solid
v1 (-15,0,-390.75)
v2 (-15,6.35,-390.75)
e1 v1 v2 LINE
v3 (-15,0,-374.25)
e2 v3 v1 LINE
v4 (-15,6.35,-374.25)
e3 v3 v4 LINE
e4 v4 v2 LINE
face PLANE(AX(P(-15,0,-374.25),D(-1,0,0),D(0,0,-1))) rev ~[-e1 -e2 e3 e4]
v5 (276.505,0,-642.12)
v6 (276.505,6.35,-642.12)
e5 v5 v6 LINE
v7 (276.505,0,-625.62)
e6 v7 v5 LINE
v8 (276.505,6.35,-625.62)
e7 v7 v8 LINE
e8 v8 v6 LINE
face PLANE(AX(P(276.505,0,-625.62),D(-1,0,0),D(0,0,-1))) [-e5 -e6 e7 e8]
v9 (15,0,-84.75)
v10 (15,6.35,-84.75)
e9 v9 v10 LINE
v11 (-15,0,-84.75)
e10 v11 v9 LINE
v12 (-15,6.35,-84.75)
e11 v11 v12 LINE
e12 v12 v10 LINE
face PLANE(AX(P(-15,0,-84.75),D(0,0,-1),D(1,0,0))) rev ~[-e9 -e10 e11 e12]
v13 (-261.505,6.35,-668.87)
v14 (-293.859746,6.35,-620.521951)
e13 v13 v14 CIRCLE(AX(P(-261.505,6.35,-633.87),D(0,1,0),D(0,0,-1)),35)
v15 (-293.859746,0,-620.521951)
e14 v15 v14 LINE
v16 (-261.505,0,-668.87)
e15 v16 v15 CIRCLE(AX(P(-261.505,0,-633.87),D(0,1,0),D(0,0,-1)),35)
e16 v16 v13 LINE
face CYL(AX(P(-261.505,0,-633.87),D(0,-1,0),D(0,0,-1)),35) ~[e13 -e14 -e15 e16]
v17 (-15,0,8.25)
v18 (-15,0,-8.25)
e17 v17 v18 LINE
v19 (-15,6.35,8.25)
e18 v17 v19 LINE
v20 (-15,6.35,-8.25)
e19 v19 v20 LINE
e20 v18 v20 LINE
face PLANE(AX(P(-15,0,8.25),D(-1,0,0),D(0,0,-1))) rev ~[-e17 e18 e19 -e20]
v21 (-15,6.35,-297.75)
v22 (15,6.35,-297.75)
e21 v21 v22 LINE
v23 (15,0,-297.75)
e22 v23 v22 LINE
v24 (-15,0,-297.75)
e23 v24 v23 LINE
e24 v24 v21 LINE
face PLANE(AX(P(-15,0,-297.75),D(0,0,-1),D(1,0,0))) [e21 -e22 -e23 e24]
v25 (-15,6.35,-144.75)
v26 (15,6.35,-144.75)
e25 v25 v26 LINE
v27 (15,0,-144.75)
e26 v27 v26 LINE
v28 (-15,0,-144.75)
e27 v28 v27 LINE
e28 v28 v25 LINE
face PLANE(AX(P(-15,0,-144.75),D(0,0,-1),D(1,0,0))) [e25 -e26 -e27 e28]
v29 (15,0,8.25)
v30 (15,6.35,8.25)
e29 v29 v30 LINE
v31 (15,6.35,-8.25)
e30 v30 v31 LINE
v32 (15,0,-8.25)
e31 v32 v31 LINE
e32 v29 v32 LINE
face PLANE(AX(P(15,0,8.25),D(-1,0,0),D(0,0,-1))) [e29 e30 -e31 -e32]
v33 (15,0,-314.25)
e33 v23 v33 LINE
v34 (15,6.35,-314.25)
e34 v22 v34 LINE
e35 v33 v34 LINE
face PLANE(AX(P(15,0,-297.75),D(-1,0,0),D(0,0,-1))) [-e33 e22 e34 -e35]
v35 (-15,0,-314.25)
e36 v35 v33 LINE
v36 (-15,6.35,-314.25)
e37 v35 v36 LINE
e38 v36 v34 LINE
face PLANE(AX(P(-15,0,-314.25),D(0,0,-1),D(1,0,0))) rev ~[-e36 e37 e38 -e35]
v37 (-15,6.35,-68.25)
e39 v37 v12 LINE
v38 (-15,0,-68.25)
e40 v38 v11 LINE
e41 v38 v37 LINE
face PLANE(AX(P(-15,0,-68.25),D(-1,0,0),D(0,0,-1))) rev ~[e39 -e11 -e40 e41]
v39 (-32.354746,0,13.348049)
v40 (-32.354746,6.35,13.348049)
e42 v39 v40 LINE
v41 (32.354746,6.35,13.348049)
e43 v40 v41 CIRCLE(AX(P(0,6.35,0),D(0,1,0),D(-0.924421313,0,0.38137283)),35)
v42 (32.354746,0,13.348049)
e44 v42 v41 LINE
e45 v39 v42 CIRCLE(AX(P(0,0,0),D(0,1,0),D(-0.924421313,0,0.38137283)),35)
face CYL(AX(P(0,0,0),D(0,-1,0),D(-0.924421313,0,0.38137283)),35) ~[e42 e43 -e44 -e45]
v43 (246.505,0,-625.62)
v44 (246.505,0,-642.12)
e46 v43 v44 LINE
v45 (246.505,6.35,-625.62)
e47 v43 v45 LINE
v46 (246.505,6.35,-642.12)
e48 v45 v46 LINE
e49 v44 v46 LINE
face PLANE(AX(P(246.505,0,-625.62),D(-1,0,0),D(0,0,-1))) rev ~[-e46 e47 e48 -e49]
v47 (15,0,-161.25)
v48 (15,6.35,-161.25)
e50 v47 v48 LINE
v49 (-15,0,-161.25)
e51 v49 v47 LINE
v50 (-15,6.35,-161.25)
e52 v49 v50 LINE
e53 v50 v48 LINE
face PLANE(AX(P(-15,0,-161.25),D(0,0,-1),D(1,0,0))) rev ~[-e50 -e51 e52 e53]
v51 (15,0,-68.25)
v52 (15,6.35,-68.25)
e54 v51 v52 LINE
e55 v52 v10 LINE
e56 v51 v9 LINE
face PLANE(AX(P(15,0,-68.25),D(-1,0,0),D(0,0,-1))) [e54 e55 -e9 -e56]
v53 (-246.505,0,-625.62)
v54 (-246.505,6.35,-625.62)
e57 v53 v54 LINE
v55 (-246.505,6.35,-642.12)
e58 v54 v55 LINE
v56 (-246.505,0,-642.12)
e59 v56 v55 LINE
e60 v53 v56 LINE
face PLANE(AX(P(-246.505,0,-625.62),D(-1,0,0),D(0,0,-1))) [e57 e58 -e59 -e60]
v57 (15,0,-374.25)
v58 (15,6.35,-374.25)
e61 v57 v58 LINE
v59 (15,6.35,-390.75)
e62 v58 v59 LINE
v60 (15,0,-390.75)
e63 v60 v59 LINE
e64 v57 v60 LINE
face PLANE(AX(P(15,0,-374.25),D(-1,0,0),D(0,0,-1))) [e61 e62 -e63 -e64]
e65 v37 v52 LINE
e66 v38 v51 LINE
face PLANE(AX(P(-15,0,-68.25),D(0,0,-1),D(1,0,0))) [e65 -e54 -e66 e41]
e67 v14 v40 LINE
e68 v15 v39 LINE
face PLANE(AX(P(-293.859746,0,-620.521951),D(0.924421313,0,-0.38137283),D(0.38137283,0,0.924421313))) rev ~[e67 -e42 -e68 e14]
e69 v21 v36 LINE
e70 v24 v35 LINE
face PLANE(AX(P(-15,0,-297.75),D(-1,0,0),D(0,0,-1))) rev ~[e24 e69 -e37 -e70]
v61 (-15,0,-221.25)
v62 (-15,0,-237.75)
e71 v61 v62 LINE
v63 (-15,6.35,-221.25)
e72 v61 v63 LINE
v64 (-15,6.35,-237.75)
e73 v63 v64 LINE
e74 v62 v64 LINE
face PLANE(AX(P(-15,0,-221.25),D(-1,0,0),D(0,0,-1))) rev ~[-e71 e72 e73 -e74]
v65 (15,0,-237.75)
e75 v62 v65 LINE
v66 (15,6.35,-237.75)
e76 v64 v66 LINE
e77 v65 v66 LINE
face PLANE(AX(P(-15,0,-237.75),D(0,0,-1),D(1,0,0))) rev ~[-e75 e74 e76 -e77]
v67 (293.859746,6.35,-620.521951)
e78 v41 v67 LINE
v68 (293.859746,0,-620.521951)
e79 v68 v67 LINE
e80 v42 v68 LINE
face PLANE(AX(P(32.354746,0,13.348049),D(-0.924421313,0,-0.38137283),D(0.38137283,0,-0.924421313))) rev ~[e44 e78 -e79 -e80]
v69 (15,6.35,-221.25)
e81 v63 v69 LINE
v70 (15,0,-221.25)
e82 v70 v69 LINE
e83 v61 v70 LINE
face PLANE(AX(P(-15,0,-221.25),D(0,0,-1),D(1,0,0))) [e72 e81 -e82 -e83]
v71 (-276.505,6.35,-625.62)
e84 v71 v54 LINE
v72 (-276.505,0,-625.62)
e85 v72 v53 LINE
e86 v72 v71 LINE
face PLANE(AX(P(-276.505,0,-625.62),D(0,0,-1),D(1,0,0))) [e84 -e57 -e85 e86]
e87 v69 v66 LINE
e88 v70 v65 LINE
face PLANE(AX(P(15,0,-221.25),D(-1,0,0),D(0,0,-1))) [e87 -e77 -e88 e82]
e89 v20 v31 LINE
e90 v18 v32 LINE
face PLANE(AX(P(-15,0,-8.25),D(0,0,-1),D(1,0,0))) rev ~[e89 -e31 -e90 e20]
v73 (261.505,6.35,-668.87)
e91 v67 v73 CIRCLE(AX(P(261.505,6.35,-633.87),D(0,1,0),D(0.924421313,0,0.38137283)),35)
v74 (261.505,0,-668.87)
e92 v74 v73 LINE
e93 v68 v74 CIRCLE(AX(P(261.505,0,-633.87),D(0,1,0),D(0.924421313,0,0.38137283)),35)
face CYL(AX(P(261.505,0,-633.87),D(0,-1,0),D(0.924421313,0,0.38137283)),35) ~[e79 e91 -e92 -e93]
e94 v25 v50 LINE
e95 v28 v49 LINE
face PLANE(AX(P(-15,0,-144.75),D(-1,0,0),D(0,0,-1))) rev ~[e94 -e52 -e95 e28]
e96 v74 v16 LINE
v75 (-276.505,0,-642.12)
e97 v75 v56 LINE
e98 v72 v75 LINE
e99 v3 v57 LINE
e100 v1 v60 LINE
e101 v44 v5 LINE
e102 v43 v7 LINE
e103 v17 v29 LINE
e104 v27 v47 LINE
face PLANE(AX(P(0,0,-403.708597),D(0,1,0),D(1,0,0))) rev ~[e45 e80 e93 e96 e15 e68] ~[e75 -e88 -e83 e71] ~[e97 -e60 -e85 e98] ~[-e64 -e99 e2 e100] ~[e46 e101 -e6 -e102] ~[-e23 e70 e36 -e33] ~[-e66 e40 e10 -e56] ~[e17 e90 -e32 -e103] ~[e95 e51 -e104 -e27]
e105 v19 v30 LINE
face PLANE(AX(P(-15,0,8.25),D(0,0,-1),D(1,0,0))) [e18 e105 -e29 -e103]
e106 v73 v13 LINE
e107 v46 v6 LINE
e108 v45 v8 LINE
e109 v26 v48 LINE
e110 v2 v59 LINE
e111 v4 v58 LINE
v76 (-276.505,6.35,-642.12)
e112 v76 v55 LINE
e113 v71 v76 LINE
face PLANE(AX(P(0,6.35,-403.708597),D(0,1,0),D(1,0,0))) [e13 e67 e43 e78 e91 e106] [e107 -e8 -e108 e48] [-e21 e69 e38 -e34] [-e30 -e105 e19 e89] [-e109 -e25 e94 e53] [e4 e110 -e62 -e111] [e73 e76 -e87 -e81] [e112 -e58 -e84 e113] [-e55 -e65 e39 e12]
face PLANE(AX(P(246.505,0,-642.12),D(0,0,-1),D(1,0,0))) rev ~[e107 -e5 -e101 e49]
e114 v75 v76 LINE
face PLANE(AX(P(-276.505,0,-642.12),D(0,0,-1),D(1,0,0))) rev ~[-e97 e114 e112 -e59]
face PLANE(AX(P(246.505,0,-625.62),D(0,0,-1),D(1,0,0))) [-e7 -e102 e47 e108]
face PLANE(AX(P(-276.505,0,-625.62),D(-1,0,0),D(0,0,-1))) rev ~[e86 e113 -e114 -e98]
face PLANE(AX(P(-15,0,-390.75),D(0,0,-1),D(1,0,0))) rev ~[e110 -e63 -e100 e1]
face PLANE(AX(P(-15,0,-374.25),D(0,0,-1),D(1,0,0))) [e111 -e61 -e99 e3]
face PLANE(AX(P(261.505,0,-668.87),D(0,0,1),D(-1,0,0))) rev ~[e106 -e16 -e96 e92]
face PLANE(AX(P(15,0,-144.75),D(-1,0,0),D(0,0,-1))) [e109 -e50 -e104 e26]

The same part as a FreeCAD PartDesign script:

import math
import FreeCAD as App
import Part
import Sketcher


def add_polygon(sketch, points):
    """Adds a closed chain of lines whose ends are joined by coincident constraints."""
    first, n = sketch.GeometryCount, len(points)
    for a, b in zip(points, points[1:] + points[:1]):
        sketch.addGeometry(Part.LineSegment(App.Vector(*a, 0), App.Vector(*b, 0)), False)
    for i in range(n):
        sketch.addConstraint(Sketcher.Constraint("Coincident", first + i, 2, first + (i + 1) % n, 1))

doc = App.newDocument("Part")
params = doc.addObject("Spreadsheet::Sheet", "Params")
for row, (alias, value) in enumerate([
    ("sketch1_radius", "35 mm"),
    ("sketch1_width", "30 mm"),
    ("sketch1_height", "16.5 mm"),
    ("sketch1_width2", "523.01 mm"),
    ("pad1_length", "6.35 mm"),
], start=1):
    params.set(f"A{row}", alias)
    params.set(f"B{row}", "=" + value)
    params.setAlias(f"B{row}", alias)

body = doc.addObject("PartDesign::Body", "Body")

# Sketch on XZ plane
sketch1 = body.newObject("Sketcher::SketchObject", "Sketch")
sketch1.AttachmentSupport = (doc.getObject("XZ_Plane"), [""])
sketch1.MapMode = "FlatFace"
sketch1.addGeometry(Part.LineSegment(App.Vector(32.354746, 13.348049, 0), App.Vector(293.859746, -620.521951, 0)), False)  # 0
sketch1.addGeometry(Part.ArcOfCircle(Part.Circle(App.Vector(261.505, -633.87, 0), App.Vector(0, 0, 1), 35), math.radians(-90), math.radians(22.418745)), False)  # 1
sketch1.addGeometry(Part.LineSegment(App.Vector(261.505, -668.87, 0), App.Vector(-261.505, -668.87, 0)), False)  # 2
sketch1.addGeometry(Part.ArcOfCircle(Part.Circle(App.Vector(-261.505, -633.87, 0), App.Vector(0, 0, 1), 35), math.radians(157.581255), math.radians(270)), False)  # 3
sketch1.addGeometry(Part.LineSegment(App.Vector(-293.859746, -620.521951, 0), App.Vector(-32.354746, 13.348049, 0)), False)  # 4
sketch1.addGeometry(Part.ArcOfCircle(Part.Circle(App.Vector(0, 0, 0), App.Vector(0, 0, 1), 35), math.radians(22.418745), math.radians(157.581255)), False)  # 5
add_polygon(sketch1, [(15, 8.25), (-15, 8.25), (-15, -8.25), (15, -8.25)])  # lines 6-9
add_polygon(sketch1, [(15, -68.25), (-15, -68.25), (-15, -84.75), (15, -84.75)])  # lines 10-13
add_polygon(sketch1, [(15, -144.75), (-15, -144.75), (-15, -161.25), (15, -161.25)])  # lines 14-17
add_polygon(sketch1, [(15, -221.25), (-15, -221.25), (-15, -237.75), (15, -237.75)])  # lines 18-21
add_polygon(sketch1, [(15, -297.75), (-15, -297.75), (-15, -314.25), (15, -314.25)])  # lines 22-25
add_polygon(sketch1, [(-246.505, -625.62), (-276.505, -625.62), (-276.505, -642.12), (-246.505, -642.12)])  # lines 26-29
add_polygon(sketch1, [(15, -374.25), (-15, -374.25), (-15, -390.75), (15, -390.75)])  # lines 30-33
add_polygon(sketch1, [(276.505, -625.62), (246.505, -625.62), (246.505, -642.12), (276.505, -642.12)])  # lines 34-37
sketch1.addConstraint([
    Sketcher.Constraint("Tangent", 0, 2, 1, 2),
    Sketcher.Constraint("Tangent", 1, 1, 2, 1),
    Sketcher.Constraint("Tangent", 2, 2, 3, 2),
    Sketcher.Constraint("Tangent", 3, 1, 4, 1),
    Sketcher.Constraint("Tangent", 4, 2, 5, 2),
    Sketcher.Constraint("Tangent", 5, 1, 0, 1),
    Sketcher.Constraint("Horizontal", 2),
    Sketcher.Constraint("Horizontal", 6),
    Sketcher.Constraint("Vertical", 7),
    Sketcher.Constraint("Horizontal", 8),
    Sketcher.Constraint("Vertical", 9),
    Sketcher.Constraint("Horizontal", 10),
    Sketcher.Constraint("Vertical", 11),
    Sketcher.Constraint("Horizontal", 12),
    Sketcher.Constraint("Vertical", 13),
    Sketcher.Constraint("Horizontal", 14),
    Sketcher.Constraint("Vertical", 15),
    Sketcher.Constraint("Horizontal", 16),
    Sketcher.Constraint("Vertical", 17),
    Sketcher.Constraint("Horizontal", 18),
    Sketcher.Constraint("Vertical", 19),
    Sketcher.Constraint("Horizontal", 20),
    Sketcher.Constraint("Vertical", 21),
    Sketcher.Constraint("Horizontal", 22),
    Sketcher.Constraint("Vertical", 23),
    Sketcher.Constraint("Horizontal", 24),
    Sketcher.Constraint("Vertical", 25),
    Sketcher.Constraint("Horizontal", 26),
    Sketcher.Constraint("Vertical", 27),
    Sketcher.Constraint("Horizontal", 28),
    Sketcher.Constraint("Vertical", 29),
    Sketcher.Constraint("Horizontal", 30),
    Sketcher.Constraint("Vertical", 31),
    Sketcher.Constraint("Horizontal", 32),
    Sketcher.Constraint("Vertical", 33),
    Sketcher.Constraint("Horizontal", 34),
    Sketcher.Constraint("Vertical", 35),
    Sketcher.Constraint("Horizontal", 36),
    Sketcher.Constraint("Vertical", 37),
    Sketcher.Constraint("Coincident", 5, 3, -1, 1),
    Sketcher.Constraint("Equal", 1, 3),
    Sketcher.Constraint("Equal", 3, 5),
    Sketcher.Constraint("Symmetric", 6, 2, 8, 2, -1, 1),
    Sketcher.Constraint("Symmetric", 29, 2, 34, 2, -2),
    Sketcher.Constraint("Symmetric", 27, 2, 36, 2, -2),
    Sketcher.Constraint("Vertical", 7, 2, 10, 2),
    Sketcher.Constraint("Vertical", 9, 2, 12, 2),
    Sketcher.Constraint("Vertical", 11, 2, 14, 2),
    Sketcher.Constraint("Vertical", 13, 2, 16, 2),
    Sketcher.Constraint("Vertical", 15, 2, 18, 2),
    Sketcher.Constraint("Vertical", 17, 2, 20, 2),
    Sketcher.Constraint("Vertical", 19, 2, 22, 2),
    Sketcher.Constraint("Vertical", 21, 2, 24, 2),
    Sketcher.Constraint("Vertical", 23, 2, 30, 2),
    Sketcher.Constraint("Vertical", 25, 2, 32, 2),
    Sketcher.Constraint("Equal", 24, 26),
    Sketcher.Constraint("Equal", 9, 11),
    Sketcher.Constraint("Equal", 13, 15),
    Sketcher.Constraint("Equal", 17, 19),
    Sketcher.Constraint("Equal", 21, 23),
    Sketcher.Constraint("Equal", 25, 27),
    Sketcher.Constraint("Equal", 29, 31),
    Sketcher.Constraint("Equal", 0, 4),
    Sketcher.Constraint("Radius", 1, 35.0),
    Sketcher.Constraint("DistanceX", 6, 2, 6, 1, 30.0),
    Sketcher.Constraint("DistanceY", 7, 2, 7, 1, 16.5),
    Sketcher.Constraint("DistanceY", 10, 2, 7, 2, 60.0),
    Sketcher.Constraint("DistanceY", 14, 2, 11, 2, 60.0),
    Sketcher.Constraint("DistanceY", 18, 2, 15, 2, 60.0),
    Sketcher.Constraint("DistanceY", 22, 2, 19, 2, 60.0),
    Sketcher.Constraint("DistanceX", 26, 2, 3, 3, 15.0),
    Sketcher.Constraint("DistanceY", 30, 2, 23, 2, 60.0),
    Sketcher.Constraint("DistanceX", 2, 2, 2, 1, 523.01),
    Sketcher.Constraint("DistanceY", 1, 3, -1, 1, 633.87),
    Sketcher.Constraint("DistanceY", 26, 2, -1, 1, 625.62),
])
sketch1.setExpression("Constraints[95]", "Params.sketch1_radius")
sketch1.setExpression("Constraints[96]", "Params.sketch1_width")
sketch1.setExpression("Constraints[97]", "Params.sketch1_height")
sketch1.setExpression("Constraints[104]", "Params.sketch1_width2")
pad1 = body.newObject("PartDesign::Pad", "Pad")
pad1.Profile = sketch1
pad1.setExpression("Length", "Params.pad1_length")
pad1.Reversed = True

doc.recompute()
